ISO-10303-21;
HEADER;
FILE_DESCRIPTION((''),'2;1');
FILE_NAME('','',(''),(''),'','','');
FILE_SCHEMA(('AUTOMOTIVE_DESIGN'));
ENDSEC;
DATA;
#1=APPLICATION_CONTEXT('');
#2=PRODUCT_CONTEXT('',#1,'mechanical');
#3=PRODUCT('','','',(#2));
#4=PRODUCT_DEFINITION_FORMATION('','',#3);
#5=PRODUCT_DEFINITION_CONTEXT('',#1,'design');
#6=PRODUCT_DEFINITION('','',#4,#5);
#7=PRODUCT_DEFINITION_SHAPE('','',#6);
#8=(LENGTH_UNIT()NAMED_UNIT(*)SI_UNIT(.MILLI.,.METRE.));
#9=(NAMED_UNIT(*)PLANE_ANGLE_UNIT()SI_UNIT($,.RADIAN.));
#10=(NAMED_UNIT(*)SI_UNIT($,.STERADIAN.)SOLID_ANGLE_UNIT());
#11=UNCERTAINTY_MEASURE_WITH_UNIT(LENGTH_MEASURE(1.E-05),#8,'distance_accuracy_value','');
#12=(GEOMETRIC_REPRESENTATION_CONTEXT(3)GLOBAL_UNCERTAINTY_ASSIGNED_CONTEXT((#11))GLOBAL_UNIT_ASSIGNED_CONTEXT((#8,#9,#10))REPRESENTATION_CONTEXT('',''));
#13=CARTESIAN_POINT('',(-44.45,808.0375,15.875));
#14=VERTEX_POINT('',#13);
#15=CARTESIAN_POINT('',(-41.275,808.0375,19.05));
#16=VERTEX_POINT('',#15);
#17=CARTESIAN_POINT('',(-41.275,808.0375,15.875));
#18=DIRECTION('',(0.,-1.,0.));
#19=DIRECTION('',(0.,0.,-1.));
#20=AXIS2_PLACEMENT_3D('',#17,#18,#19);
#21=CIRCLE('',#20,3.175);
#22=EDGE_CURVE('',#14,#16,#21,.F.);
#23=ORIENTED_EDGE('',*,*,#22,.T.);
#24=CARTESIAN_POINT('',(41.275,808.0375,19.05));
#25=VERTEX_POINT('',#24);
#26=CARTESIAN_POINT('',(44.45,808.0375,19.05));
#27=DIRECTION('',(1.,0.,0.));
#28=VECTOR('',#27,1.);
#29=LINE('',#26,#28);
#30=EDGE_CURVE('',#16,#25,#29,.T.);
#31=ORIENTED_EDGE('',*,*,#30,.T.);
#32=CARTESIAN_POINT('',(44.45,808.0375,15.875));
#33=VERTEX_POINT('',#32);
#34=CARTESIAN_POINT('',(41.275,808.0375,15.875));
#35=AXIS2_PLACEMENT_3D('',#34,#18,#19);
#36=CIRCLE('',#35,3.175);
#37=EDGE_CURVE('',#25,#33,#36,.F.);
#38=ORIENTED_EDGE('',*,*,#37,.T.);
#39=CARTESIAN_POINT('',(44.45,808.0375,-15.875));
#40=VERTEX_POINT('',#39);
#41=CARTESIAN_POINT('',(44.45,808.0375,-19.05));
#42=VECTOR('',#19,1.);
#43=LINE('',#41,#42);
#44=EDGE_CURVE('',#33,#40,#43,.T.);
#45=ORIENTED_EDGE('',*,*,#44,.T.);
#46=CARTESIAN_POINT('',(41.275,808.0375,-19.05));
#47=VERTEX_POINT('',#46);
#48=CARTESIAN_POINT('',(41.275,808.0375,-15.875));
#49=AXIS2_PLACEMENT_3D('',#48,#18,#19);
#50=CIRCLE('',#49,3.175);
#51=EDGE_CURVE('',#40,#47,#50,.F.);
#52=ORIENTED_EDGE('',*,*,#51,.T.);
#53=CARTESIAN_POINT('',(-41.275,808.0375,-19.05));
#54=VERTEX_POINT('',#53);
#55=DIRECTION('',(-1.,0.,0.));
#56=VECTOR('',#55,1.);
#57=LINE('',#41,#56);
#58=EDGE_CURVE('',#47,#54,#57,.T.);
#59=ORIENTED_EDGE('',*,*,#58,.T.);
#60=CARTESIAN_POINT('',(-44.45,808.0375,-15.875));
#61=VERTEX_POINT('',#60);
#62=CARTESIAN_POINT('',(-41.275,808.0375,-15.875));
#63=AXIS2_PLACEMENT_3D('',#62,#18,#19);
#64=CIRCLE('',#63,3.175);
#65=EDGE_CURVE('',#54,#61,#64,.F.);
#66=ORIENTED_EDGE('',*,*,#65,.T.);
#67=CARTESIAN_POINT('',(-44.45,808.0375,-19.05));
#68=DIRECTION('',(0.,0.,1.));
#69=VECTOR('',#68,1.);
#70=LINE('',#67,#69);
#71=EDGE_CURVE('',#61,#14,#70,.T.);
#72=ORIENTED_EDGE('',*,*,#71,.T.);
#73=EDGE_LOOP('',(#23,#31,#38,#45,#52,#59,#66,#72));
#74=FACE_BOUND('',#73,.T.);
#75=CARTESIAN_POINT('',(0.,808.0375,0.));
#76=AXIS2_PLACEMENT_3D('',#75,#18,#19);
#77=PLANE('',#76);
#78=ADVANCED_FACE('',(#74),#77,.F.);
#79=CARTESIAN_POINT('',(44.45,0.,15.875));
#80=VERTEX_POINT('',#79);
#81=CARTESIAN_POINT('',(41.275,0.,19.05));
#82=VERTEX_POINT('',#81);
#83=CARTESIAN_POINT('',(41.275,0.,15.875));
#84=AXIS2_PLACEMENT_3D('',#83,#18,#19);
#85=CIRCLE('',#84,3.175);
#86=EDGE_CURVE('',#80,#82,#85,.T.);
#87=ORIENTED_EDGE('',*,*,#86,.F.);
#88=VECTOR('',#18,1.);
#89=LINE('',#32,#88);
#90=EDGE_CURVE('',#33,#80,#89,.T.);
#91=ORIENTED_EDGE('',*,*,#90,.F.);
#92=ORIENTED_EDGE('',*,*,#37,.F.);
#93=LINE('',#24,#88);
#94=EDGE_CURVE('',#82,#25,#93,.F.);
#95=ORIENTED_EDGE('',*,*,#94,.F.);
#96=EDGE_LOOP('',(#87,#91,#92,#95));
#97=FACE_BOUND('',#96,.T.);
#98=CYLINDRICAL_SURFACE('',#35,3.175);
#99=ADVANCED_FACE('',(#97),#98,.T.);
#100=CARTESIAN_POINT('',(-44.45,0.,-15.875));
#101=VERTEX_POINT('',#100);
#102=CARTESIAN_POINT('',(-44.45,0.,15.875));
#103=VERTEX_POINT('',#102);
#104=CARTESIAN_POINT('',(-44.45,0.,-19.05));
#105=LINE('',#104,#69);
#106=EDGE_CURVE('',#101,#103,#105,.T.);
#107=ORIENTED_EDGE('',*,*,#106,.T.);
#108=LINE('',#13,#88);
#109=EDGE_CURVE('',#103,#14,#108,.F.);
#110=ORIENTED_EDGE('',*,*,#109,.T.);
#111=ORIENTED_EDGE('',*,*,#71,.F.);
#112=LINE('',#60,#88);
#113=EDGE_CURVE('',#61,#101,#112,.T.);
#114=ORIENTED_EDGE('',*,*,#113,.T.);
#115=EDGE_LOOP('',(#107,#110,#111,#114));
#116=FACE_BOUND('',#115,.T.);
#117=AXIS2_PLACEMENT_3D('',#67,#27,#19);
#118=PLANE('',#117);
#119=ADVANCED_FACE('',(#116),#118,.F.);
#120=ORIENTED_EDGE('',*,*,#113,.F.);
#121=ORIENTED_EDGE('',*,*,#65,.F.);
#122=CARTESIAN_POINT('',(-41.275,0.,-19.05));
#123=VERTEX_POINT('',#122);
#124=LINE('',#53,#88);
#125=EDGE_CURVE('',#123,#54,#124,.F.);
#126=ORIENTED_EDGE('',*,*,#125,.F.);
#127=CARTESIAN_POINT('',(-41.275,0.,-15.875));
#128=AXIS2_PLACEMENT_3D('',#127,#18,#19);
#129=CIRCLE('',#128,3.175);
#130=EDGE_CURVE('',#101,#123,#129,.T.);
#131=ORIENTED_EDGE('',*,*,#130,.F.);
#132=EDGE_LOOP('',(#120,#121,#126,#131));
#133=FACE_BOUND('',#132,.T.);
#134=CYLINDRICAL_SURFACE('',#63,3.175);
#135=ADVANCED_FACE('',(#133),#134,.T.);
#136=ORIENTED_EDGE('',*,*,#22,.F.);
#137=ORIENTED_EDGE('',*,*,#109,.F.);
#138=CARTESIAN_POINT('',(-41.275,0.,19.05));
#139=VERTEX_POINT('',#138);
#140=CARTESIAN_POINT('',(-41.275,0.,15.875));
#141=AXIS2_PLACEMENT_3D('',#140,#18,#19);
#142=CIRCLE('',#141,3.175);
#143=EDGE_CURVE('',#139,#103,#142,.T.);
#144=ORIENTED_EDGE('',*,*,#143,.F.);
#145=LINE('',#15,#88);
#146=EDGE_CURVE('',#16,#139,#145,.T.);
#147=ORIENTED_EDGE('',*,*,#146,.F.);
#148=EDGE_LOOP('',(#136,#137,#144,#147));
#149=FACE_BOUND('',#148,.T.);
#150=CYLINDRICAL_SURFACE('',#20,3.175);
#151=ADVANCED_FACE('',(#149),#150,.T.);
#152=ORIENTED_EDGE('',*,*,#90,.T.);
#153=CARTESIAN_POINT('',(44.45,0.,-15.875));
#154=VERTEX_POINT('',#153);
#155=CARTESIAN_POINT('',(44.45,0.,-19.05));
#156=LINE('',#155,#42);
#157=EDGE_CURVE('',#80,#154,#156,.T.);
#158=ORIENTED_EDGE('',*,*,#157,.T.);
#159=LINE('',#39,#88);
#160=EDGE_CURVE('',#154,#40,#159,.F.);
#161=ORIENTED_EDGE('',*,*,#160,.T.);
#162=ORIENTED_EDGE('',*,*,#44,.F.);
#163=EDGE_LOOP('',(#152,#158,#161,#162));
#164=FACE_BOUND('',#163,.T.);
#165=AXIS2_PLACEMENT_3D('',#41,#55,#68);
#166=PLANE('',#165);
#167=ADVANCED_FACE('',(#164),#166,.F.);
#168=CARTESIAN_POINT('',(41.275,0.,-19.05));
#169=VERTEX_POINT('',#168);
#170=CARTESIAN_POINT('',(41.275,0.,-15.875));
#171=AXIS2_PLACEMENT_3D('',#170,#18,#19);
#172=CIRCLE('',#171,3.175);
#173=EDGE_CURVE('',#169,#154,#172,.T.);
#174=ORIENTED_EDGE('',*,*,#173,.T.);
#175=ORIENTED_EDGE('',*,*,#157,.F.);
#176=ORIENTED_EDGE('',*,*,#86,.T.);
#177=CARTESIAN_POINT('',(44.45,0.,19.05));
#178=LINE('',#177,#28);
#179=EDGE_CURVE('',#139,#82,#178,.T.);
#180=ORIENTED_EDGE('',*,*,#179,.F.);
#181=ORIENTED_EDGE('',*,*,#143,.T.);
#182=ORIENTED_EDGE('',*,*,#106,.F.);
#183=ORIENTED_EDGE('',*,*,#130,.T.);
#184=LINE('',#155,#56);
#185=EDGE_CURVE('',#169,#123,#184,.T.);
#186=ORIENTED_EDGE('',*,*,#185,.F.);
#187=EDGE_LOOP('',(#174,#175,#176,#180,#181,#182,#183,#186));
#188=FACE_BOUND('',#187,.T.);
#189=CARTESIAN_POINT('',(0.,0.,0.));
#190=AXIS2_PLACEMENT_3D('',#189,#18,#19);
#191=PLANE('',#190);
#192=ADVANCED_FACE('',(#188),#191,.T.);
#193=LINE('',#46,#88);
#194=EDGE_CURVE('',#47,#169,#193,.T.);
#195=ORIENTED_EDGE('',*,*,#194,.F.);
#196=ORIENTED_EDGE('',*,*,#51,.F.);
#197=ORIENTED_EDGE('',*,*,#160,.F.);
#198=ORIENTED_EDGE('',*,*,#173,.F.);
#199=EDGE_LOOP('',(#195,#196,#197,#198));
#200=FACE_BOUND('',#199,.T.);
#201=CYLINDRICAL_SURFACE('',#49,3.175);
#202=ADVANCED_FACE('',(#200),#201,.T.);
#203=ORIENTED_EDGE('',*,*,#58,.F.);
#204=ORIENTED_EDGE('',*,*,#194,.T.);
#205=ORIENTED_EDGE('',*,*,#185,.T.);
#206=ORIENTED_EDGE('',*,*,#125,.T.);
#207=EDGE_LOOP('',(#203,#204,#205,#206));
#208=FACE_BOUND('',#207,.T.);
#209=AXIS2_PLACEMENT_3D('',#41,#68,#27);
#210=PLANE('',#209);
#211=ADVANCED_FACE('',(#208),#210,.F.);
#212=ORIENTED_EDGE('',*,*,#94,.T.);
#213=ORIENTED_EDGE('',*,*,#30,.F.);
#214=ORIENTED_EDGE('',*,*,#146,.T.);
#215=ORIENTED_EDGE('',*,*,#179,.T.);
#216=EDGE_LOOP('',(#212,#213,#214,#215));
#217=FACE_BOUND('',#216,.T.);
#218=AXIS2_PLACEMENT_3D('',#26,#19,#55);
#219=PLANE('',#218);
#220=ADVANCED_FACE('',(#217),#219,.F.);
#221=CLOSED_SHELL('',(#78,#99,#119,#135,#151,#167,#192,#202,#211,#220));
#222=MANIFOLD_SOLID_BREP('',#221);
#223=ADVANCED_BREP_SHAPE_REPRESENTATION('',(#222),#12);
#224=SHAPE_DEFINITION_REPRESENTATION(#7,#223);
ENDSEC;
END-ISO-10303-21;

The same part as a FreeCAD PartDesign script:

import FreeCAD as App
import Part
import Sketcher
Q = App.Units.Quantity


def edges_at(feature, points):
    """Names of the edges that pass closest to the given points."""
    edges = feature.Shape.Edges
    near = lambda p: min(range(len(edges)), key=lambda i: edges[i].distToShape(Part.Vertex(*p))[0])
    return sorted({f"Edge{near(p) + 1}" for p in points})

doc = App.newDocument("Part")
body = doc.addObject("PartDesign::Body", "Body")

sketch1 = doc.addObject("Sketcher::SketchObject", "Sketch")
body.addObject(sketch1)
sketch1.AttachmentSupport = (doc.XZ_Plane, [""])
sketch1.MapMode = "FlatFace"
sketch1.addGeometry([
    Part.LineSegment(App.Vector(-44, -19, 0), App.Vector(-44, 19, 0)),
    Part.LineSegment(App.Vector(-44, 19, 0), App.Vector(44, 19, 0)),
    Part.LineSegment(App.Vector(44, 19, 0), App.Vector(44, -19, 0)),
    Part.LineSegment(App.Vector(44, -19, 0), App.Vector(-44, -19, 0)),
], False)
sketch1.addConstraint([
    Sketcher.Constraint("Coincident", 0, 2, 1, 1),
    Sketcher.Constraint("Coincident", 1, 2, 2, 1),
    Sketcher.Constraint("Coincident", 2, 2, 3, 1),
    Sketcher.Constraint("Coincident", 3, 2, 0, 1),
    Sketcher.Constraint("Vertical", 0),
    Sketcher.Constraint("Horizontal", 1),
    Sketcher.Constraint("Vertical", 2),
    Sketcher.Constraint("Horizontal", 3),
    Sketcher.Constraint("Symmetric", 0, 2, 2, 2, -1, 1),
    Sketcher.Constraint("DistanceX", 1, 1, 1, 2, Q("3.5 in")),
    Sketcher.Constraint("DistanceY", 0, 1, 0, 2, Q("1.5 in")),
])
pad1 = doc.addObject("PartDesign::Pad", "Pad")
body.addObject(pad1)
pad1.Profile = sketch1
pad1.Length = Q("31.8125 in")
pad1.Reversed = True
doc.recompute()

fillet = doc.addObject("PartDesign::Fillet", "Fillet")
body.addObject(fillet)
fillet.Base = (pad1, edges_at(pad1, [
    (-44.45, 404.019, -19.05),
    (44.45, 404.019, -19.05),
    (44.45, 404.019, 19.05),
    (-44.45, 404.019, 19.05),
]))
fillet.Radius = Q("0.125 in")

doc.recompute()
